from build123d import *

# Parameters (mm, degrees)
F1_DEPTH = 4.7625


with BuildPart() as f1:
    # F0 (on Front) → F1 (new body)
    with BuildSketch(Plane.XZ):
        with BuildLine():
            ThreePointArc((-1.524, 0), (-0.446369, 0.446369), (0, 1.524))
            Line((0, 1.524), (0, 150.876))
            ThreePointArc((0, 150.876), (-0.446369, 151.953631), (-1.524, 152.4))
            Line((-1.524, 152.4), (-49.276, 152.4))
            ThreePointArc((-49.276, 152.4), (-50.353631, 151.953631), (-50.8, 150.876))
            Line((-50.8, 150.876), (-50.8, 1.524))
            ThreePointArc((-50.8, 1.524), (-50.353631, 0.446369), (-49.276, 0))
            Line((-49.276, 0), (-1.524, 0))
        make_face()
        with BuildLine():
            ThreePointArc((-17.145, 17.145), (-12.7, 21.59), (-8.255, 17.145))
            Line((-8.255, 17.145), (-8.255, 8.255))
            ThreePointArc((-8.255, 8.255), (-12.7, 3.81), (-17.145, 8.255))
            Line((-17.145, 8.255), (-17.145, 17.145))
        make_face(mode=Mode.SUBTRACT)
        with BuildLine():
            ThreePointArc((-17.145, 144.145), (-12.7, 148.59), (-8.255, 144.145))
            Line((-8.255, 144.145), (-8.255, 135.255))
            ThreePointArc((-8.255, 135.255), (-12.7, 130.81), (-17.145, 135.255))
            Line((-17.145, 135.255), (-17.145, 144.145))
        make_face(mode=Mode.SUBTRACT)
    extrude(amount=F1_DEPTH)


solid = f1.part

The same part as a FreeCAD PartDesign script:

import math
import FreeCAD as App
import Part
import Sketcher
Q = App.Units.Quantity

doc = App.newDocument("Part")
body = doc.addObject("PartDesign::Body", "Body")

sketch1 = body.newObject("Sketcher::SketchObject", "Sketch")
sketch1.AttachmentSupport = (doc.getObject("XZ_Plane"), [""])
sketch1.MapMode = "FlatFace"
sketch1.addGeometry([
    Part.ArcOfCircle(Part.Circle(App.Vector(-1.5, 1.5, 0), App.Vector(0, 0, 1), 1.5), math.radians(-90), math.radians(0)),
    Part.LineSegment(App.Vector(0, 1.5, 0), App.Vector(0, 150.9, 0)),
    Part.ArcOfCircle(Part.Circle(App.Vector(-1.5, 150.9, 0), App.Vector(0, 0, 1), 1.5), math.radians(0), math.radians(90)),
    Part.LineSegment(App.Vector(-1.5, 152.4, 0), App.Vector(-49.3, 152.4, 0)),
    Part.ArcOfCircle(Part.Circle(App.Vector(-49.3, 150.9, 0), App.Vector(0, 0, 1), 1.5), math.radians(90), math.radians(180)),
    Part.LineSegment(App.Vector(-50.8, 150.9, 0), App.Vector(-50.8, 1.5, 0)),
    Part.ArcOfCircle(Part.Circle(App.Vector(-49.3, 1.5, 0), App.Vector(0, 0, 1), 1.5), math.radians(180), math.radians(270)),
    Part.LineSegment(App.Vector(-49.3, 0, 0), App.Vector(-1.5, 0, 0)),
    Part.LineSegment(App.Vector(-17.1, 8.3, 0), App.Vector(-17.1, 17.1, 0)),
    Part.ArcOfCircle(Part.Circle(App.Vector(-12.7, 17.1, 0), App.Vector(0, 0, 1), 4.4), math.radians(0), math.radians(180)),
    Part.LineSegment(App.Vector(-8.3, 17.1, 0), App.Vector(-8.3, 8.3, 0)),
    Part.ArcOfCircle(Part.Circle(App.Vector(-12.7, 8.3, 0), App.Vector(0, 0, 1), 4.4), math.radians(180), math.radians(360)),
    Part.LineSegment(App.Vector(-17.1, 135.3, 0), App.Vector(-17.1, 144.1, 0)),
    Part.ArcOfCircle(Part.Circle(App.Vector(-12.7, 144.1, 0), App.Vector(0, 0, 1), 4.4), math.radians(0), math.radians(180)),
    Part.LineSegment(App.Vector(-8.3, 144.1, 0), App.Vector(-8.3, 135.3, 0)),
    Part.ArcOfCircle(Part.Circle(App.Vector(-12.7, 135.3, 0), App.Vector(0, 0, 1), 4.4), math.radians(180), math.radians(360)),
], False)
sketch1.addConstraint([
    Sketcher.Constraint("Tangent", 0, 2, 1, 1),
    Sketcher.Constraint("Tangent", 1, 2, 2, 1),
    Sketcher.Constraint("Tangent", 2, 2, 3, 1),
    Sketcher.Constraint("Tangent", 3, 2, 4, 1),
    Sketcher.Constraint("Tangent", 4, 2, 5, 1),
    Sketcher.Constraint("Tangent", 5, 2, 6, 1),
    Sketcher.Constraint("Tangent", 6, 2, 7, 1),
    Sketcher.Constraint("Tangent", 7, 2, 0, 1),
    Sketcher.Constraint("Tangent", 8, 2, 9, 2),
    Sketcher.Constraint("Tangent", 9, 1, 10, 1),
    Sketcher.Constraint("Tangent", 10, 2, 11, 2),
    Sketcher.Constraint("Tangent", 11, 1, 8, 1),
    Sketcher.Constraint("Tangent", 12, 2, 13, 2),
    Sketcher.Constraint("Tangent", 13, 1, 14, 1),
    Sketcher.Constraint("Tangent", 14, 2, 15, 2),
    Sketcher.Constraint("Tangent", 15, 1, 12, 1),
    Sketcher.Constraint("Vertical", 1),
    Sketcher.Constraint("Horizontal", 3),
    Sketcher.Constraint("Vertical", 5),
    Sketcher.Constraint("Horizontal", 7),
    Sketcher.Constraint("Vertical", 8),
    Sketcher.Constraint("Vertical", 10),
    Sketcher.Constraint("Vertical", 12),
    Sketcher.Constraint("Vertical", 14),
    Sketcher.Constraint("Equal", 0, 2),
    Sketcher.Constraint("Equal", 2, 4),
    Sketcher.Constraint("Equal", 4, 6),
    Sketcher.Constraint("Equal", 11, 13),
    Sketcher.Constraint("PointOnObject", 0, 2, -2),
    Sketcher.Constraint("PointOnObject", 6, 2, -1),
    Sketcher.Constraint("Vertical", 11, 3, 13, 3),
    Sketcher.Constraint("Equal", 10, 12),
    Sketcher.Constraint("Radius", 0, Q("0.06 in")),
    Sketcher.Constraint("DistanceY", -1, 1, 2, 2, Q("6 in")),
    Sketcher.Constraint("DistanceX", 4, 2, -1, 1, Q("2 in")),
    Sketcher.Constraint("Radius", 9, Q("0.175 in")),
    Sketcher.Constraint("DistanceY", 9, 3, 13, 3, Q("5 in")),
    Sketcher.Constraint("DistanceY", 8, 1, 8, 2, Q("0.35 in")),
    Sketcher.Constraint("DistanceX", 9, 3, -1, 1, Q("0.5 in")),
    Sketcher.Constraint("DistanceY", -1, 1, 9, 3, Q("0.675 in")),
])
pad1 = body.newObject("PartDesign::Pad", "Pad")
pad1.Profile = sketch1
pad1.Length = Q("0.1875 in")

doc.recompute()
